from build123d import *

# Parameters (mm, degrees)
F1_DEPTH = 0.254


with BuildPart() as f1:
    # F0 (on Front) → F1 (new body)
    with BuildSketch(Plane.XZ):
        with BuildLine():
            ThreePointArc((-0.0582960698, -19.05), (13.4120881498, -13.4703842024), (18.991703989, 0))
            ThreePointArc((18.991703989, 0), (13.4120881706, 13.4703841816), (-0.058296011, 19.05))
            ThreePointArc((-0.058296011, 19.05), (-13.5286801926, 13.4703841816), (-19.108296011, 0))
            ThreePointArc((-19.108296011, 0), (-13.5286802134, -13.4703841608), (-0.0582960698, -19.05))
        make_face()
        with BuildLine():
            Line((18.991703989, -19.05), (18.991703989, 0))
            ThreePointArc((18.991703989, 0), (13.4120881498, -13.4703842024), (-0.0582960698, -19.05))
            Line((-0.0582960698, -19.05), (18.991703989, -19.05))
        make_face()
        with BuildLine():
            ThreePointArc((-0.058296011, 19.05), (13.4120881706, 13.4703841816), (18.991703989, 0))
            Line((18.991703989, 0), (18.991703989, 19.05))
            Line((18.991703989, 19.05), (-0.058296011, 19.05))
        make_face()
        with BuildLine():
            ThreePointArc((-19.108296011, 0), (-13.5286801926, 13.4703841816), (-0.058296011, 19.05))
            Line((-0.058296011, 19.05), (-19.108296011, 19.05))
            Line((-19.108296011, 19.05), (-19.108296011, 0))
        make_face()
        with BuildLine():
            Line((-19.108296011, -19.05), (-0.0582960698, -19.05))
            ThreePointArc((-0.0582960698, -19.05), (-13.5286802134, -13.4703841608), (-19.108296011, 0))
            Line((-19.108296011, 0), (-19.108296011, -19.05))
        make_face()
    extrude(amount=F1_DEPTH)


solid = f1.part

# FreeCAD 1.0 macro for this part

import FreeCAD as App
import Part
import Sketcher
Q = App.Units.Quantity


def add_polygon(sketch, points):
    """Adds a closed chain of lines whose ends are joined by coincident constraints."""
    first, n = sketch.GeometryCount, len(points)
    for a, b in zip(points, points[1:] + points[:1]):
        sketch.addGeometry(Part.LineSegment(App.Vector(*a, 0), App.Vector(*b, 0)), False)
    for i in range(n):
        sketch.addConstraint(Sketcher.Constraint("Coincident", first + i, 2, first + (i + 1) % n, 1))

doc = App.newDocument("Part")
params = doc.addObject("Spreadsheet::Sheet", "Params")
for row, (alias, value) in enumerate([
    ("sketch1_width", "1.5 in"),
    ("pad1_length", "0.01 in"),
], start=1):
    params.set(f"A{row}", alias)
    params.set(f"B{row}", "=" + value)
    params.setAlias(f"B{row}", alias)

body = doc.addObject("PartDesign::Body", "Body")

sketch1 = doc.addObject("Sketcher::SketchObject", "Sketch")
body.addObject(sketch1)
sketch1.AttachmentSupport = (doc.XZ_Plane, [""])
sketch1.MapMode = "FlatFace"
add_polygon(sketch1, [(19, -19), (19, 19), (-19, 19), (-19, -19)])
sketch1.addConstraint(Sketcher.Constraint("Vertical", 0))
sketch1.addConstraint(Sketcher.Constraint("Horizontal", 1))
sketch1.addConstraint(Sketcher.Constraint("Vertical", 2))
sketch1.addConstraint(Sketcher.Constraint("Horizontal", 3))
sketch1.addConstraint(Sketcher.Constraint("Equal", 3, 0))
sketch1.addConstraint(Sketcher.Constraint("DistanceX", 1, 2, 1, 1, Q("1.5 in")))
sketch1.addConstraint(Sketcher.Constraint("DistanceY", -1, 1, 0, 2, Q("0.75 in")))
sketch1.addConstraint(Sketcher.Constraint("DistanceX", -1, 1, 0, 2, 18.991704))
sketch1.setExpression("Constraints[9]", "Params.sketch1_width")
pad1 = doc.addObject("PartDesign::Pad", "Pad")
body.addObject(pad1)
pad1.Profile = sketch1
pad1.setExpression("Length", "Params.pad1_length")

doc.recompute()
